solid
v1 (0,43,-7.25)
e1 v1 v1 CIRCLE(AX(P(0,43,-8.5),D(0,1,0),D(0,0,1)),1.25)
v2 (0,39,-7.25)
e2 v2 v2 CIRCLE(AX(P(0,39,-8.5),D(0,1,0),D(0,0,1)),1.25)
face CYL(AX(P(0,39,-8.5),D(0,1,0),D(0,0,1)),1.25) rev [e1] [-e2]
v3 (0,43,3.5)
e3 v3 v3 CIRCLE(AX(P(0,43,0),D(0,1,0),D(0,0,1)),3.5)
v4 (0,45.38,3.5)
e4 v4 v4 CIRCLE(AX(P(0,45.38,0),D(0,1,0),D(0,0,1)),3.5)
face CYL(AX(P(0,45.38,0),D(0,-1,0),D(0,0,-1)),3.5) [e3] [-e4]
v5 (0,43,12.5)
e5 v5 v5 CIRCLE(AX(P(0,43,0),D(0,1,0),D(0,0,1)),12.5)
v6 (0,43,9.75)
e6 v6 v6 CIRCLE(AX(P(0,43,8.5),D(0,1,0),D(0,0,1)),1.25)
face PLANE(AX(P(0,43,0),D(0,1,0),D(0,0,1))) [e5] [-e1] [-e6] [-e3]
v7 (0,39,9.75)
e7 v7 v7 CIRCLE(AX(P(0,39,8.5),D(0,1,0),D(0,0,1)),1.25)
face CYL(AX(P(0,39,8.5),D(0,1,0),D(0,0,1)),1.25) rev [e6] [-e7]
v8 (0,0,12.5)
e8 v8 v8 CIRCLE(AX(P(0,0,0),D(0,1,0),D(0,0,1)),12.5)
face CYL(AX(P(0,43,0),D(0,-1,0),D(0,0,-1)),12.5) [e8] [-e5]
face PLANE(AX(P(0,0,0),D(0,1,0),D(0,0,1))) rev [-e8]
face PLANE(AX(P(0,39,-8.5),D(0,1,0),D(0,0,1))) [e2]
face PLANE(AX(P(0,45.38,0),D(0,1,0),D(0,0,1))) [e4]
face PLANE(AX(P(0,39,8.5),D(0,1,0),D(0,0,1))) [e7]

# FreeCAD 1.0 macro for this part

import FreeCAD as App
import Part
import Sketcher

V = App.Vector
Q = App.Units.Quantity

doc = App.newDocument("Part")
body = doc.addObject("PartDesign::Body", "Body")

sketch1 = body.newObject("Sketcher::SketchObject", "Sketch")
sketch1.AttachmentSupport = (doc.getObject("XZ_Plane"), [""])
sketch1.MapMode = "FlatFace"
sketch1.addGeometry(Part.Circle(V(0, 0, 0), V(0, 0, 1), 12.5), False)
sketch1.addConstraint([
    Sketcher.Constraint("Coincident", 0, 3, -1, 1),
    Sketcher.Constraint("Diameter", 0, Q("25 mm")),
])
pad1 = body.newObject("PartDesign::Pad", "Pad")
pad1.Profile = sketch1
pad1.Length = 43
pad1.Reversed = True

sketch2 = body.newObject("Sketcher::SketchObject", "Sketch001")
sketch2.AttachmentSupport = (doc.getObject("XZ_Plane"), [""])
sketch2.MapMode = "FlatFace"
sketch2.AttachmentOffset = App.Placement(V(0, 0, -43), App.Rotation())
sketch2.addGeometry(Part.Circle(V(0, 0, 0), V(0, 0, 1), 3.5), False)
sketch2.addConstraint([
    Sketcher.Constraint("Coincident", 0, 3, -1, 1),
    Sketcher.Constraint("Diameter", 0, Q("7 mm")),
])
pad2 = body.newObject("PartDesign::Pad", "Pad001")
pad2.Profile = sketch2
pad2.Length = 2.38
pad2.Reversed = True

sketch3 = body.newObject("Sketcher::SketchObject", "Sketch002")
sketch3.AttachmentSupport = (doc.getObject("XZ_Plane"), [""])
sketch3.MapMode = "FlatFace"
sketch3.AttachmentOffset = App.Placement(V(0, 0, -43), App.Rotation())
sketch3.addGeometry([
    Part.Circle(V(0, -8.5, 0), V(0, 0, 1), 1.25),
    Part.Circle(V(0, 8.5, 0), V(0, 0, 1), 1.25),
], False)
sketch3.addConstraint([
    Sketcher.Constraint("Equal", 0, 1),
    Sketcher.Constraint("Symmetric", 0, 3, 1, 3, -1, 1),
    Sketcher.Constraint("PointOnObject", 0, 3, -2),
    Sketcher.Constraint("Diameter", 0, Q("2.5 mm")),
    Sketcher.Constraint("DistanceY", 0, 3, 1, 3, Q("17 mm")),
])
pocket1 = body.newObject("PartDesign::Pocket", "Pocket")
pocket1.Profile = sketch3
pocket1.Length = 4
pocket1.Reversed = True

doc.recompute()
